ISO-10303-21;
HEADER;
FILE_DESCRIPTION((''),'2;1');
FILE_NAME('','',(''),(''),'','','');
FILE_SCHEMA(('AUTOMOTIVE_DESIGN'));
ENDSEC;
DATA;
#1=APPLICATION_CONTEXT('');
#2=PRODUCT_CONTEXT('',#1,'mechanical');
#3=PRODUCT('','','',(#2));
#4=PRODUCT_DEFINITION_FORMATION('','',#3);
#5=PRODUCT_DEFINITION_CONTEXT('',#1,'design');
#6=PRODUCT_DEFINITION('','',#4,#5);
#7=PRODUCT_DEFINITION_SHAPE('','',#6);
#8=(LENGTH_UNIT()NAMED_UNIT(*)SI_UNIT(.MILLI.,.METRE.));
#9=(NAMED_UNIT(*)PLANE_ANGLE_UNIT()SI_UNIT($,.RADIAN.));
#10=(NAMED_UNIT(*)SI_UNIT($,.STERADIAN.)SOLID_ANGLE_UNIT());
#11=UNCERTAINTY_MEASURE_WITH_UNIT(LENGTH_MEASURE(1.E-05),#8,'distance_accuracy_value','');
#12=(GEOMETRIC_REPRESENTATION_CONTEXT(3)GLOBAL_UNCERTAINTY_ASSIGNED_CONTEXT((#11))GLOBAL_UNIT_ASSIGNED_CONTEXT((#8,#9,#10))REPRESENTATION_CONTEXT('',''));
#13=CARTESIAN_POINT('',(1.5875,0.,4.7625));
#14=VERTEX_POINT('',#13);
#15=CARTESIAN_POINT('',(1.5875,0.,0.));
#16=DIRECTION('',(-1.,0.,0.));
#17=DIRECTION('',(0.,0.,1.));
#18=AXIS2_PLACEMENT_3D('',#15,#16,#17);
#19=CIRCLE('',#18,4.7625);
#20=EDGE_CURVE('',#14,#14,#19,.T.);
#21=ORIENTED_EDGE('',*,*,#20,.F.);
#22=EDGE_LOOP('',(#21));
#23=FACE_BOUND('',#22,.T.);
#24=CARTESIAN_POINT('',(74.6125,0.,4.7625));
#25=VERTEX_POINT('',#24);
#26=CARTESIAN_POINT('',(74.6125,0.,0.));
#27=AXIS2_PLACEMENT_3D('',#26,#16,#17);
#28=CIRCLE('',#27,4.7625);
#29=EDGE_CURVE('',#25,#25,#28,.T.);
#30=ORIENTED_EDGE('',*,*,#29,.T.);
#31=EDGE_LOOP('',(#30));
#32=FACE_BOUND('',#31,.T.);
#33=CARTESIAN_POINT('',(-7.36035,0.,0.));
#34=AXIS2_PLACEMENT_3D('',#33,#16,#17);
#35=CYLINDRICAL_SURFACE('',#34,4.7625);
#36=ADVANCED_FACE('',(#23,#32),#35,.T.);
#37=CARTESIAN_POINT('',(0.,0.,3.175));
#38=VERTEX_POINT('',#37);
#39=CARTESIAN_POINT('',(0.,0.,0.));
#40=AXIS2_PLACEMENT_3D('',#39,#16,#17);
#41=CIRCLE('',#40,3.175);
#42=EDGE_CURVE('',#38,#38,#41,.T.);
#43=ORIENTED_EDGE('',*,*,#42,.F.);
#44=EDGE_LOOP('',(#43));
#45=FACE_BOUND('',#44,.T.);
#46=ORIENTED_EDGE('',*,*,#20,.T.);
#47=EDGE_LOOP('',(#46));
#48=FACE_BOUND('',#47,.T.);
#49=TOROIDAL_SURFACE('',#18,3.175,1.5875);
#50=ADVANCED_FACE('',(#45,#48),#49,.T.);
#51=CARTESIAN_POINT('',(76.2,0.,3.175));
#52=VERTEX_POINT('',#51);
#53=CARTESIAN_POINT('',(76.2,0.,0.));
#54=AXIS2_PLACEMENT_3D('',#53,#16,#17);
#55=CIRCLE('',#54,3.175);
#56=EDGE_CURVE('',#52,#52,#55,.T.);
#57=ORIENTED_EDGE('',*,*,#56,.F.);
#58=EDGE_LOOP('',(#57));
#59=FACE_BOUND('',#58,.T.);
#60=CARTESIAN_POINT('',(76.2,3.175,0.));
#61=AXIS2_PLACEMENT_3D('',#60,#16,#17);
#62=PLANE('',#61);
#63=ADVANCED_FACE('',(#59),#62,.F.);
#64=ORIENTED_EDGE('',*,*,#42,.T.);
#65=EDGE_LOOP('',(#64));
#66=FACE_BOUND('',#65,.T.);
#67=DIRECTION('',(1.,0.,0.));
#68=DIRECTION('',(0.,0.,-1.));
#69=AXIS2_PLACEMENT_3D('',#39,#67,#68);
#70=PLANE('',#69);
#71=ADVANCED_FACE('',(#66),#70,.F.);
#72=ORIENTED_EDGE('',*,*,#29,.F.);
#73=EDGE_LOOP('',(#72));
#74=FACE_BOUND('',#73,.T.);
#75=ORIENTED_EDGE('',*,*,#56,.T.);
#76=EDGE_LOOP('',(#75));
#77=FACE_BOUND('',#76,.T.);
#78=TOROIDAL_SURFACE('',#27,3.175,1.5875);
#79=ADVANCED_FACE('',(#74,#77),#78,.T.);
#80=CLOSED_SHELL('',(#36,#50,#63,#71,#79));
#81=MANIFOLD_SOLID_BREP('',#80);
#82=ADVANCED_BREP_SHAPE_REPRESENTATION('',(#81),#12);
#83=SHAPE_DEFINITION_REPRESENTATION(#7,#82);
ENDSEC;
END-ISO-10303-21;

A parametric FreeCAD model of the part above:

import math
import FreeCAD as App
import Part
import Sketcher
Q = App.Units.Quantity

doc = App.newDocument("Part")
params = doc.addObject("Spreadsheet::Sheet", "Params")
for row, (alias, value) in enumerate([
    ("sketch1_width", "3 in"),
    ("sketch1_radius", "0.0625 in"),
    ("sketch1_height", "0.125 in"),
    ("revolution_angle", "360 deg"),
], start=1):
    params.set(f"A{row}", alias)
    params.set(f"B{row}", "=" + value)
    params.setAlias(f"B{row}", alias)

body = doc.addObject("PartDesign::Body", "Body")

# Sketch on XY plane
sketch1 = body.newObject("Sketcher::SketchObject", "Sketch")
sketch1.AttachmentSupport = (doc.getObject("XY_Plane"), [""])
sketch1.MapMode = "FlatFace"
sketch1.addGeometry([
    Part.LineSegment(App.Vector(0, 3.2, 0), App.Vector(0, 0, 0)),  # 0
    Part.LineSegment(App.Vector(0, 0, 0), App.Vector(76.2, 0, 0)),  # 1
    Part.LineSegment(App.Vector(76.2, 0, 0), App.Vector(76.2, 3.2, 0)),  # 2
    Part.ArcOfCircle(Part.Circle(App.Vector(74.6, 3.2, 0), App.Vector(0, 0, 1), 1.6), math.radians(0), math.radians(90)),  # 3
    Part.LineSegment(App.Vector(74.6, 4.8, 0), App.Vector(1.6, 4.8, 0)),  # 4
    Part.ArcOfCircle(Part.Circle(App.Vector(1.6, 3.2, 0), App.Vector(0, 0, 1), 1.6), math.radians(90), math.radians(180)),  # 5
], False)
sketch1.addConstraint([
    Sketcher.Constraint("Coincident", 0, 2, 1, 1),
    Sketcher.Constraint("Coincident", 1, 2, 2, 1),
    Sketcher.Constraint("Tangent", 2, 2, 3, 1),
    Sketcher.Constraint("Tangent", 3, 2, 4, 1),
    Sketcher.Constraint("Tangent", 4, 2, 5, 1),
    Sketcher.Constraint("Tangent", 5, 2, 0, 1),
    Sketcher.Constraint("Vertical", 0),
    Sketcher.Constraint("Horizontal", 1),
    Sketcher.Constraint("Vertical", 2),
    Sketcher.Constraint("Horizontal", 4),
    Sketcher.Constraint("Coincident", 0, 2, -1, 1),
    Sketcher.Constraint("Equal", 3, 5),
    Sketcher.Constraint("DistanceX", 1, 1, 1, 2, Q("3 in")),
    Sketcher.Constraint("Radius", 3, Q("0.0625 in")),
    Sketcher.Constraint("DistanceY", 0, 2, 0, 1, Q("0.125 in")),
])
sketch1.setExpression("Constraints[12]", "Params.sketch1_width")
sketch1.setExpression("Constraints[13]", "Params.sketch1_radius")
sketch1.setExpression("Constraints[14]", "Params.sketch1_height")
revolution = body.newObject("PartDesign::Revolution", "Revolution")
revolution.Profile = sketch1
revolution.ReferenceAxis = (sketch1, ["H_Axis"])
revolution.setExpression("Angle", "Params.revolution_angle")

doc.recompute()
